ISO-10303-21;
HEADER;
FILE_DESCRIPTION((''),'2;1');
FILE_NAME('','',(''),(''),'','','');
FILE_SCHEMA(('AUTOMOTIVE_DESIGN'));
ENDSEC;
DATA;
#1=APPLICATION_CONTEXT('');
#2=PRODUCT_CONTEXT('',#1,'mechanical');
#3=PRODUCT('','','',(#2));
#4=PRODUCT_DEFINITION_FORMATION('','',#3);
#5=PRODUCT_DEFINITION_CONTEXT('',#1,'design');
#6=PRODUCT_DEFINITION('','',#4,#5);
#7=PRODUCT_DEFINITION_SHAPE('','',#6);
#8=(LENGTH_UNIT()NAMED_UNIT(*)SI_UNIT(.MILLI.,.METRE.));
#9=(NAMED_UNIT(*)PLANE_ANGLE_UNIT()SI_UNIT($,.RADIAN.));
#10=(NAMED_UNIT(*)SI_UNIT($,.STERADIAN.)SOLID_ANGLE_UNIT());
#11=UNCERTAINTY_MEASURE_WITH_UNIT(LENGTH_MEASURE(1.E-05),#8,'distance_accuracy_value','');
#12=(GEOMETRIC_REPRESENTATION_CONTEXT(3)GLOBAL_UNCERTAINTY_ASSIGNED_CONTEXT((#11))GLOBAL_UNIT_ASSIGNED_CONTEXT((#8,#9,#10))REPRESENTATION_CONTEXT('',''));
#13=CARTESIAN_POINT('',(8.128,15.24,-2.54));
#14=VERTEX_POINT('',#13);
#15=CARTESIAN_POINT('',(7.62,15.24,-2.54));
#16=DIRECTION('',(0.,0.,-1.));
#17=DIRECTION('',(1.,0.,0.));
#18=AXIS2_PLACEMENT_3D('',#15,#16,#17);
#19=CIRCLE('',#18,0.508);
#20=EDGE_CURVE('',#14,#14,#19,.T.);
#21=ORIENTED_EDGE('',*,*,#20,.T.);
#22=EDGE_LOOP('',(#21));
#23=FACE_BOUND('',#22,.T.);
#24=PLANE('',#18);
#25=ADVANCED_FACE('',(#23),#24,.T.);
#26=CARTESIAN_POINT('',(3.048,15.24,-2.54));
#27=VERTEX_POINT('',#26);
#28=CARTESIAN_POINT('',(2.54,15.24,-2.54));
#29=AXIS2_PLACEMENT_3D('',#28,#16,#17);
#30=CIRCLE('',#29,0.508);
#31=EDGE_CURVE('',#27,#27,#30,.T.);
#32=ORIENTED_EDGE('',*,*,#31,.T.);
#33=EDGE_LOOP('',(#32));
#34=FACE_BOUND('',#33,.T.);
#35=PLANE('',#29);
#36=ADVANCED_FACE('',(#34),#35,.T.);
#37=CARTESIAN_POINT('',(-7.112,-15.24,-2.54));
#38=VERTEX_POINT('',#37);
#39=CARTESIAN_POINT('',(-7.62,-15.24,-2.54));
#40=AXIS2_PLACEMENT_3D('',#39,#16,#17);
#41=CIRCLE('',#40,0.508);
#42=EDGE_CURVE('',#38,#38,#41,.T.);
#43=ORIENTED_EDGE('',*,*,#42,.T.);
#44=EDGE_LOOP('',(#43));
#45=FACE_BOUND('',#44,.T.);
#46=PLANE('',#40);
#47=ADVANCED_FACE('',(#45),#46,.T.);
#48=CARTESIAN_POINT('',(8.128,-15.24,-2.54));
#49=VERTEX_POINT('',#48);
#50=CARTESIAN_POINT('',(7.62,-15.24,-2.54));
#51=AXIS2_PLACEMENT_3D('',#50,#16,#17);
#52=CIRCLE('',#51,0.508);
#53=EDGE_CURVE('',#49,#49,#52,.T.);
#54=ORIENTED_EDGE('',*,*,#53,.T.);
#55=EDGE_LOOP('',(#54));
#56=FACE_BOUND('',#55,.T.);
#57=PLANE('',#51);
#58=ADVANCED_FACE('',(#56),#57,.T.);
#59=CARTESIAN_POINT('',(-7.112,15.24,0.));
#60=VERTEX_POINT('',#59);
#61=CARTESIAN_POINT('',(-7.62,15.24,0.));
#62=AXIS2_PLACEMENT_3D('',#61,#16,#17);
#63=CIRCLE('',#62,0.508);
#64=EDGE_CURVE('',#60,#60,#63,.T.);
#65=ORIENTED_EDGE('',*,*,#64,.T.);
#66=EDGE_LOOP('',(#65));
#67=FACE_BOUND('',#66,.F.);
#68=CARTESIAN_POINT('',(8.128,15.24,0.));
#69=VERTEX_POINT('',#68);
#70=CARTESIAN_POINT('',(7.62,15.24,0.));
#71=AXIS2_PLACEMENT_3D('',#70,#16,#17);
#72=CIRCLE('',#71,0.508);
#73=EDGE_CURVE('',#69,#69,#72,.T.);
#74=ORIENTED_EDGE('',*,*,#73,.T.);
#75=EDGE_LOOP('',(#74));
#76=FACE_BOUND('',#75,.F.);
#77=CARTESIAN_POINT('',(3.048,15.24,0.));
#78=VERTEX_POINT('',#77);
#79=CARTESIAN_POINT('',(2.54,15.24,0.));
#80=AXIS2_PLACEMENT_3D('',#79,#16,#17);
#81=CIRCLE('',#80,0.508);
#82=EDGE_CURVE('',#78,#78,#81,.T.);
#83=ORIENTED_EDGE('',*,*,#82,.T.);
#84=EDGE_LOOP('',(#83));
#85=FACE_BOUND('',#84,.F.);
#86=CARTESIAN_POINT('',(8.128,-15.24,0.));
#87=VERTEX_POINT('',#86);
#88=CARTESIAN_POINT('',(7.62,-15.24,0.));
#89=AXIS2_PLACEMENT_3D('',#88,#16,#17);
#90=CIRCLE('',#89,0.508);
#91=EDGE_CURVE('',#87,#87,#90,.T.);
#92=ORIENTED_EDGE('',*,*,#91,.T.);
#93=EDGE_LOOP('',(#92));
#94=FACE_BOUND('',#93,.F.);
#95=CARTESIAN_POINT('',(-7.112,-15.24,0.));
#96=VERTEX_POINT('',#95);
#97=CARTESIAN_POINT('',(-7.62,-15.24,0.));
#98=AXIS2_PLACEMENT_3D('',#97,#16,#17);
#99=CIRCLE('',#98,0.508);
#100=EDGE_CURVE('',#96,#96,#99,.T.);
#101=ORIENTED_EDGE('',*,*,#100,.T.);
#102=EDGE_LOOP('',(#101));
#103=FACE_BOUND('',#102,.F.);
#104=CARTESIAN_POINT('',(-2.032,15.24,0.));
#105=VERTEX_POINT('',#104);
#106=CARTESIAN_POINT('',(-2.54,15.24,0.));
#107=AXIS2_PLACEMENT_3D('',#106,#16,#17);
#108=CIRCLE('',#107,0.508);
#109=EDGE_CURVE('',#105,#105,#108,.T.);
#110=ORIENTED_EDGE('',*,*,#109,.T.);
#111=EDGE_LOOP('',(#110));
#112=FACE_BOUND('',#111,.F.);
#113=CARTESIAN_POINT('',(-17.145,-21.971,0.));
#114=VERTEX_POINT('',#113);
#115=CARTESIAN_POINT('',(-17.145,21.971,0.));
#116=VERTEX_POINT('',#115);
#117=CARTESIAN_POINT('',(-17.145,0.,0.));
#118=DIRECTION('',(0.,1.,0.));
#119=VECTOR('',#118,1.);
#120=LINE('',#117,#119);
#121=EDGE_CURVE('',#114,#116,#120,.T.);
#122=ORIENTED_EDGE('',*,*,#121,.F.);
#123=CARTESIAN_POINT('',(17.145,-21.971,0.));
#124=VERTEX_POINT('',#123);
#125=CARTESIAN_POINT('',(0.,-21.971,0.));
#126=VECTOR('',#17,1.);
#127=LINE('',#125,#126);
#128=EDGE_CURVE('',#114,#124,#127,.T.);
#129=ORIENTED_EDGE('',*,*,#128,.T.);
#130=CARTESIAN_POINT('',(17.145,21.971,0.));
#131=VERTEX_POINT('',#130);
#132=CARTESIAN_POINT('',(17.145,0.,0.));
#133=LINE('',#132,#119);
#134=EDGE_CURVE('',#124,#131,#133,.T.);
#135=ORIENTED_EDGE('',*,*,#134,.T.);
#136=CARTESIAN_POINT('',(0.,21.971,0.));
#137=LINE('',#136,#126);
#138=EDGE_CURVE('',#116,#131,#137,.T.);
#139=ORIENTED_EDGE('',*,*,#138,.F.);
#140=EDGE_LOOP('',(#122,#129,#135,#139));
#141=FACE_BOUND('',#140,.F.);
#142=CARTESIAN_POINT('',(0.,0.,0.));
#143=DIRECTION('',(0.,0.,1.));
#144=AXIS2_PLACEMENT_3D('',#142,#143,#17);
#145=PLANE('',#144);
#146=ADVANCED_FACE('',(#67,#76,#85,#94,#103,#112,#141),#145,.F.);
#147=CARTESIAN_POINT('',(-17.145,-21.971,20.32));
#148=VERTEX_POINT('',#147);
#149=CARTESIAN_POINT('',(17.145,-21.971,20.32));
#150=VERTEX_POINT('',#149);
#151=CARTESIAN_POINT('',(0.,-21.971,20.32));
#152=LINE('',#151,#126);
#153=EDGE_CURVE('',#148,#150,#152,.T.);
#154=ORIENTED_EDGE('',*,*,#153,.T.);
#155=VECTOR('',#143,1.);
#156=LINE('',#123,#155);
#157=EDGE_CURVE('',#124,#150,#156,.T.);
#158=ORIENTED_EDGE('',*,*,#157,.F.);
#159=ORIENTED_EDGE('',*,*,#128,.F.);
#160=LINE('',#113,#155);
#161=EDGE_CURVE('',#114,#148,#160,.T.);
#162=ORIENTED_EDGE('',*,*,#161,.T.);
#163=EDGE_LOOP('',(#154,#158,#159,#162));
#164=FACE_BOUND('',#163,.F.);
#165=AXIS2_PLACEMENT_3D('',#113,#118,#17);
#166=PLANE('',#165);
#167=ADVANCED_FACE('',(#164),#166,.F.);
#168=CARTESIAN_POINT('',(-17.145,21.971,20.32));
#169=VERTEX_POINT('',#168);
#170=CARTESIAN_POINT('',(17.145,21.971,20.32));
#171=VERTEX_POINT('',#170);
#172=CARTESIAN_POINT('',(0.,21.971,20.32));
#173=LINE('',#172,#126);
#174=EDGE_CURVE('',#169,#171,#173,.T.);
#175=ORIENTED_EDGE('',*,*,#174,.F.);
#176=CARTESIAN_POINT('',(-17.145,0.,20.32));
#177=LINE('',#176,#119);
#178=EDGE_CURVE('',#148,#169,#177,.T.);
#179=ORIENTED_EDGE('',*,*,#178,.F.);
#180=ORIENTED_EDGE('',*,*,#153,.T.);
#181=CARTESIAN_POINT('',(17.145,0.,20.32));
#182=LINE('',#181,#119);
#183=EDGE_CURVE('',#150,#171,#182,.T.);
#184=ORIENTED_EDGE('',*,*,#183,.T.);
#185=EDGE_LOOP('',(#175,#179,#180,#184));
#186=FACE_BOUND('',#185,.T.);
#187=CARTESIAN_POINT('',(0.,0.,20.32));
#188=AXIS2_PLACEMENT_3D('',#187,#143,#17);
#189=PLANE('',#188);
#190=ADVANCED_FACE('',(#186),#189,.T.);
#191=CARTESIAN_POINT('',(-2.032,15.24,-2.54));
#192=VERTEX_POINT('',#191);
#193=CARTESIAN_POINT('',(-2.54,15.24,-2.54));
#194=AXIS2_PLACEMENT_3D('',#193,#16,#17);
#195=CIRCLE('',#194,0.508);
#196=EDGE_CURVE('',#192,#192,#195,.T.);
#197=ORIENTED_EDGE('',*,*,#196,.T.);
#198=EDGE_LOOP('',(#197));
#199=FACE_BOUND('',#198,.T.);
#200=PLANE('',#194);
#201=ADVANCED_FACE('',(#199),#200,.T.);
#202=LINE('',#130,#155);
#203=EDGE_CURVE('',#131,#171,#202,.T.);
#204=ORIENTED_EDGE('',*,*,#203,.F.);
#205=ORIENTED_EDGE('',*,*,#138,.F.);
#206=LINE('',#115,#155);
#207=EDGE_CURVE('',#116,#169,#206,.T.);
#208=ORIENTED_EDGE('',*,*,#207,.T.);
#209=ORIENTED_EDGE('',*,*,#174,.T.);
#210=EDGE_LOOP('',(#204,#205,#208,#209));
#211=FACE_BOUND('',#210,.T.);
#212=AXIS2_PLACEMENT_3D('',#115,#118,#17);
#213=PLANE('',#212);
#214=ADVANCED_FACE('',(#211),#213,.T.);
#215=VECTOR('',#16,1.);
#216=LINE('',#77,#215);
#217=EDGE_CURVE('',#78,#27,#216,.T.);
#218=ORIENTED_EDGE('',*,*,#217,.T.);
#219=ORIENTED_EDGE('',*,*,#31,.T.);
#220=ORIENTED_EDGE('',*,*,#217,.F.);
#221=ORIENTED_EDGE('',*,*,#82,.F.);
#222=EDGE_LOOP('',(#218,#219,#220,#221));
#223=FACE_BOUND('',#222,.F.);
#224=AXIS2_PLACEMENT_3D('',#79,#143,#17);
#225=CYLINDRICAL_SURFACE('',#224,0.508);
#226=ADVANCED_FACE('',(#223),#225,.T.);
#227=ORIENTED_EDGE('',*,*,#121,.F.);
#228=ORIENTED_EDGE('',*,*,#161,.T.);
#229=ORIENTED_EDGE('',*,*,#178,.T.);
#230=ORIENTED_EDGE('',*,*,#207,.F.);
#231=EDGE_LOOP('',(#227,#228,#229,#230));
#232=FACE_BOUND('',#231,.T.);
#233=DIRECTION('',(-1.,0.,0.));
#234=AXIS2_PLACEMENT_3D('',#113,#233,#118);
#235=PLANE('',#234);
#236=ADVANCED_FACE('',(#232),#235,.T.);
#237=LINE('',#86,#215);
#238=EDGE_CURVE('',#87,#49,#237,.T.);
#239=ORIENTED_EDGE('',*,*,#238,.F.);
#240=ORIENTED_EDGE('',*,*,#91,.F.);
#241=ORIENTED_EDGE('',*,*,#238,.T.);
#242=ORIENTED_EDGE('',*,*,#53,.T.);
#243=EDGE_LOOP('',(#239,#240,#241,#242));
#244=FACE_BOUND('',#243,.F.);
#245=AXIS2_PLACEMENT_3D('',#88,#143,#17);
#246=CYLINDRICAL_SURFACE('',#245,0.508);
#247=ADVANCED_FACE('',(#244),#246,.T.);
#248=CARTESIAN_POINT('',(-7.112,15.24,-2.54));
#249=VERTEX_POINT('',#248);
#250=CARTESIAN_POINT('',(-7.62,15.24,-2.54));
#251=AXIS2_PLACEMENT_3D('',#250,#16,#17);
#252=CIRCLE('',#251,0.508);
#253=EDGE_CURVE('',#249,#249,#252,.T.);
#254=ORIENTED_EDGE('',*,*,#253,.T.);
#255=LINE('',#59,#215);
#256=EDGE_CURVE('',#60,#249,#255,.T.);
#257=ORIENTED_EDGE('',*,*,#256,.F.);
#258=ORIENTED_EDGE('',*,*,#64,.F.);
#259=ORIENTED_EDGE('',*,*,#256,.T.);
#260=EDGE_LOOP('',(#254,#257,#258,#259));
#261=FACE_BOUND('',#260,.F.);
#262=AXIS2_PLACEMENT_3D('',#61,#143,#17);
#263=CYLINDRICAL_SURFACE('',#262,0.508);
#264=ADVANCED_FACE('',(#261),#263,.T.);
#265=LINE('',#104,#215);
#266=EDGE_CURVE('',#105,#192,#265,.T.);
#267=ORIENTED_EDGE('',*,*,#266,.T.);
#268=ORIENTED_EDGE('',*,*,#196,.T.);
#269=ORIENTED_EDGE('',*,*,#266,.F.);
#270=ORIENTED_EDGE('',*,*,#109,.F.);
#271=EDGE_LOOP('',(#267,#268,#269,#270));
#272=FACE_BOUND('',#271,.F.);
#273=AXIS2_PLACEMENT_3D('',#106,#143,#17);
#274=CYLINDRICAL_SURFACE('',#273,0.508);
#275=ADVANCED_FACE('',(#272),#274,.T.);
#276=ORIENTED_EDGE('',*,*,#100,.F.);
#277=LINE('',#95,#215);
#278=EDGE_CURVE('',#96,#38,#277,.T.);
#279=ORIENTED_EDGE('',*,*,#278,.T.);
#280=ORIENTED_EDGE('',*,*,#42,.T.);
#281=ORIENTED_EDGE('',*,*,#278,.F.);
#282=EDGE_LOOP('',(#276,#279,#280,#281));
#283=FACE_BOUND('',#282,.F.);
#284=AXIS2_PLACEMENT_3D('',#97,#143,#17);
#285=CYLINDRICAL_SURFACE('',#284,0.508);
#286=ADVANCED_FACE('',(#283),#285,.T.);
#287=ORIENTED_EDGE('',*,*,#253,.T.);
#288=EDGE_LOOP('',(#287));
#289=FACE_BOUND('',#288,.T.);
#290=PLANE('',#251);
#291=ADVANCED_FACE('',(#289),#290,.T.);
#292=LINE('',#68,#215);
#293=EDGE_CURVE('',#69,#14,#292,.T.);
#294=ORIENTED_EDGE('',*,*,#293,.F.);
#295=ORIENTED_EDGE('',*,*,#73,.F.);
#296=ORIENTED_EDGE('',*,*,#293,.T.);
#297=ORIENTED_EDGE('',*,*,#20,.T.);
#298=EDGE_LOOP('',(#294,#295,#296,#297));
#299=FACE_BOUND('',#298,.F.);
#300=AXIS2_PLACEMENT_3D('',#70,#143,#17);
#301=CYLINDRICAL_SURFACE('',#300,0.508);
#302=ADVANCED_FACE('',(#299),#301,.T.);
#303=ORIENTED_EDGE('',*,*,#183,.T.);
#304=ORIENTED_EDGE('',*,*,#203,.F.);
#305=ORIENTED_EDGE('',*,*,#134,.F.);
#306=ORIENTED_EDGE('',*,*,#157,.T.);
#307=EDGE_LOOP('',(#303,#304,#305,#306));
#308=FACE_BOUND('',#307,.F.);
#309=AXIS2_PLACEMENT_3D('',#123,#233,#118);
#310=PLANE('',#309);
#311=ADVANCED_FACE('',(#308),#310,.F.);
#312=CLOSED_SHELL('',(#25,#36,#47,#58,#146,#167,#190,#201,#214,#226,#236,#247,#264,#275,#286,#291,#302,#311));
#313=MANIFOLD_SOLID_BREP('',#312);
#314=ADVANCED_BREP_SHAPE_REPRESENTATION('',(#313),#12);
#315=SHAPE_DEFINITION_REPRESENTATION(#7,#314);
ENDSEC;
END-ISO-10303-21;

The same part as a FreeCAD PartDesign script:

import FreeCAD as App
import Part
import Sketcher

V = App.Vector
Q = App.Units.Quantity

doc = App.newDocument("Part")
body = doc.addObject("PartDesign::Body", "Body")

sketch1 = body.newObject("Sketcher::SketchObject", "Sketch")
sketch1.AttachmentSupport = (doc.getObject("XY_Plane"), [""])
sketch1.MapMode = "FlatFace"
sketch1.addGeometry(Part.LineSegment(V(-17, 22, 0), V(-17, -22, 0)), False)
sketch1.addGeometry(Part.LineSegment(V(-17, -22, 0), V(17, -22, 0)), False)
sketch1.addGeometry(Part.LineSegment(V(17, -22, 0), V(17, 22, 0)), False)
sketch1.addGeometry(Part.LineSegment(V(17, 22, 0), V(-17, 22, 0)), False)
sketch1.addConstraint(Sketcher.Constraint("Coincident", 0, 2, 1, 1))
sketch1.addConstraint(Sketcher.Constraint("Coincident", 1, 2, 2, 1))
sketch1.addConstraint(Sketcher.Constraint("Coincident", 2, 2, 3, 1))
sketch1.addConstraint(Sketcher.Constraint("Coincident", 3, 2, 0, 1))
sketch1.addConstraint(Sketcher.Constraint("Vertical", 0))
sketch1.addConstraint(Sketcher.Constraint("Horizontal", 1))
sketch1.addConstraint(Sketcher.Constraint("Vertical", 2))
sketch1.addConstraint(Sketcher.Constraint("Horizontal", 3))
sketch1.addConstraint(Sketcher.Constraint("Symmetric", 0, 2, 2, 2, -1, 1))
sketch1.addConstraint(Sketcher.Constraint("DistanceX", 1, 1, 1, 2, Q("1.35 in")))
sketch1.addConstraint(Sketcher.Constraint("DistanceY", 0, 2, 0, 1, Q("1.73 in")))
pad1 = body.newObject("PartDesign::Pad", "Pad")
pad1.Profile = sketch1
pad1.Length = Q("0.8 in")

sketch2 = body.newObject("Sketcher::SketchObject", "Sketch001")
sketch2.AttachmentSupport = (doc.getObject("XY_Plane"), [""])
sketch2.MapMode = "FlatFace"
sketch2.addGeometry(Part.Circle(V(-7.6, -15.2, 0), V(0, 0, 1), 0.5), False)
sketch2.addGeometry(Part.Circle(V(7.6, -15.2, 0), V(0, 0, 1), 0.5), False)
sketch2.addGeometry(Part.Circle(V(-7.6, 15.2, 0), V(0, 0, 1), 0.5), False)
sketch2.addGeometry(Part.Circle(V(-2.5, 15.2, 0), V(0, 0, 1), 0.5), False)
sketch2.addGeometry(Part.Circle(V(2.5, 15.2, 0), V(0, 0, 1), 0.5), False)
sketch2.addGeometry(Part.Circle(V(7.6, 15.2, 0), V(0, 0, 1), 0.5), False)
sketch2.addConstraint(Sketcher.Constraint("Equal", 0, 1))
sketch2.addConstraint(Sketcher.Constraint("Equal", 1, 2))
sketch2.addConstraint(Sketcher.Constraint("Equal", 2, 3))
sketch2.addConstraint(Sketcher.Constraint("Equal", 3, 4))
sketch2.addConstraint(Sketcher.Constraint("Equal", 4, 5))
sketch2.addConstraint(Sketcher.Constraint("Symmetric", 1, 3, 2, 3, -1, 1))
sketch2.addConstraint(Sketcher.Constraint("Symmetric", 0, 3, 5, 3, -1, 1))
sketch2.addConstraint(Sketcher.Constraint("Symmetric", 0, 3, 1, 3, -2))
sketch2.addConstraint(Sketcher.Constraint("Symmetric", 3, 3, 4, 3, -2))
sketch2.addConstraint(Sketcher.Constraint("Horizontal", 2, 3, 3, 3))
sketch2.addConstraint(Sketcher.Constraint("Diameter", 0, Q("0.04 in")))
sketch2.addConstraint(Sketcher.Constraint("DistanceX", 0, 3, -1, 1, Q("0.3 in")))
sketch2.addConstraint(Sketcher.Constraint("DistanceY", 0, 3, -1, 1, Q("0.6 in")))
sketch2.addConstraint(Sketcher.Constraint("DistanceX", 3, 3, -1, 1, Q("0.1 in")))
pad2 = body.newObject("PartDesign::Pad", "Pad001")
pad2.Profile = sketch2
pad2.Length = Q("0.1 in")
pad2.Reversed = True

doc.recompute()
